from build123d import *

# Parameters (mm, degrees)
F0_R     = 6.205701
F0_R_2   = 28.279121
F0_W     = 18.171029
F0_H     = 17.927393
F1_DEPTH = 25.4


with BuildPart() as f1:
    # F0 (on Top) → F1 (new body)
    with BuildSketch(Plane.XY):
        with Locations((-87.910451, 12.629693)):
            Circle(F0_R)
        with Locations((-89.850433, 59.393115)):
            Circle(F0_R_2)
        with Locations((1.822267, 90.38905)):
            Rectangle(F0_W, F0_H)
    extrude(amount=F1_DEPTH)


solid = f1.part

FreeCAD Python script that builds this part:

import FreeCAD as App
import Part
import Sketcher

V = App.Vector
Q = App.Units.Quantity


def add_polygon(sketch, points):
    """Adds a closed chain of lines whose ends are joined by coincident constraints."""
    first, n = sketch.GeometryCount, len(points)
    for a, b in zip(points, points[1:] + points[:1]):
        sketch.addGeometry(Part.LineSegment(App.Vector(*a, 0), App.Vector(*b, 0)), False)
    for i in range(n):
        sketch.addConstraint(Sketcher.Constraint("Coincident", first + i, 2, first + (i + 1) % n, 1))

doc = App.newDocument("Part")
body = doc.addObject("PartDesign::Body", "Body")
body.AllowCompound = True

# Sketch on XY plane
sketch1 = doc.addObject("Sketcher::SketchObject", "Sketch")
body.addObject(sketch1)
sketch1.AttachmentSupport = (doc.XY_Plane, [""])
sketch1.MapMode = "FlatFace"
sketch1.addGeometry(Part.Circle(V(-88, 13, 0), V(0, 0, 1), 6), False)  # 0
sketch1.addGeometry(Part.Circle(V(-90, 59, 0), V(0, 0, 1), 28), False)  # 1
add_polygon(sketch1, [(-7, 99), (-7, 81), (11, 81), (11, 99)])  # lines 2-5
sketch1.addConstraint([
    Sketcher.Constraint("Vertical", 2),
    Sketcher.Constraint("Horizontal", 3),
    Sketcher.Constraint("Vertical", 4),
    Sketcher.Constraint("Horizontal", 5),
    Sketcher.Constraint("Diameter", 0, 12.411402),
    Sketcher.Constraint("Diameter", 1, 56.558242),
    Sketcher.Constraint("DistanceX", 3, 1, 3, 2, 18.171029),
    Sketcher.Constraint("DistanceY", 2, 2, 2, 1, 17.927393),
    Sketcher.Constraint("DistanceX", 0, 3, -1, 1, 87.910451),
    Sketcher.Constraint("DistanceX", -1, 1, 3, 2, 10.907782),
    Sketcher.Constraint("DistanceY", 1, 3, 2, 2, 22.032238),
    Sketcher.Constraint("DistanceY", 0, 3, 2, 2, 68.79566),
    Sketcher.Constraint("DistanceY", -1, 1, 0, 3, 12.629693),
    Sketcher.Constraint("DistanceX", 1, 3, -1, 1, 89.850433),
])
pad1 = doc.addObject("PartDesign::Pad", "Pad")
body.addObject(pad1)
pad1.Profile = sketch1
pad1.Length = Q("1 in")

doc.recompute()
